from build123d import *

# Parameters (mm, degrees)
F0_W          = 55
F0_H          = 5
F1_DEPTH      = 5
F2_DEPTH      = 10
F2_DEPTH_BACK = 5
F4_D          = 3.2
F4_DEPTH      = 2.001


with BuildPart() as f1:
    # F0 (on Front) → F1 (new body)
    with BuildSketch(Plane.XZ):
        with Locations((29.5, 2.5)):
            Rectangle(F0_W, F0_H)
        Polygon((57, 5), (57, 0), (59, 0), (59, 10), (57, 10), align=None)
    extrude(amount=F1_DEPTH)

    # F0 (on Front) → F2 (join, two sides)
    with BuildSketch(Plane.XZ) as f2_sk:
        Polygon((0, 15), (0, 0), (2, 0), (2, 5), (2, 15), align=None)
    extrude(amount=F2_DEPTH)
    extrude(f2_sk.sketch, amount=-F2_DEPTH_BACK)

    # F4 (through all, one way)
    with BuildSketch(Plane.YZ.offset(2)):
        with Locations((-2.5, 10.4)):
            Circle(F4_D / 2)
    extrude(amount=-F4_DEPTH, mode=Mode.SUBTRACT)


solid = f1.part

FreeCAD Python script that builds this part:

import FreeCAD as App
import Part
import Sketcher

V = App.Vector
Q = App.Units.Quantity


def add_polygon(sketch, points):
    """Adds a closed chain of lines whose ends are joined by coincident constraints."""
    first, n = sketch.GeometryCount, len(points)
    for a, b in zip(points, points[1:] + points[:1]):
        sketch.addGeometry(Part.LineSegment(App.Vector(*a, 0), App.Vector(*b, 0)), False)
    for i in range(n):
        sketch.addConstraint(Sketcher.Constraint("Coincident", first + i, 2, first + (i + 1) % n, 1))

doc = App.newDocument("Part")
body = doc.addObject("PartDesign::Body", "Body")

# Sketch on XZ plane
sketch1 = body.newObject("Sketcher::SketchObject", "Sketch")
sketch1.AttachmentSupport = (doc.getObject("XZ_Plane"), [""])
sketch1.MapMode = "FlatFace"
add_polygon(sketch1, [(2, 5), (2, 0), (59, 0), (59, 10), (57, 10), (57, 5)])  # lines 0-5
sketch1.addConstraint([
    Sketcher.Constraint("Vertical", 0),
    Sketcher.Constraint("Horizontal", 1),
    Sketcher.Constraint("Vertical", 2),
    Sketcher.Constraint("Horizontal", 3),
    Sketcher.Constraint("Vertical", 4),
    Sketcher.Constraint("Horizontal", 5),
    Sketcher.Constraint("PointOnObject", 0, 2, -1),
    Sketcher.Constraint("Equal", 0, 4),
    Sketcher.Constraint("DistanceX", 1, 1, 1, 2, Q("57 mm")),
    Sketcher.Constraint("DistanceX", 3, 2, 3, 1, Q("2 mm")),
    Sketcher.Constraint("DistanceY", 0, 2, 0, 1, Q("5 mm")),
    Sketcher.Constraint("DistanceX", -1, 1, 0, 2, Q("2 mm")),
])
pad1 = body.newObject("PartDesign::Pad", "Pad")
pad1.Profile = sketch1
pad1.Length = 5

# Sketch on XZ plane
sketch2 = body.newObject("Sketcher::SketchObject", "Sketch001")
sketch2.AttachmentSupport = (doc.getObject("XZ_Plane"), [""])
sketch2.MapMode = "FlatFace"
add_polygon(sketch2, [(0, 15), (0, 0), (2, 0), (2, 15)])  # lines 0-3
sketch2.addConstraint([
    Sketcher.Constraint("Vertical", 0),
    Sketcher.Constraint("Horizontal", 1),
    Sketcher.Constraint("Vertical", 2),
    Sketcher.Constraint("Horizontal", 3),
    Sketcher.Constraint("Coincident", 0, 2, -1, 1),
    Sketcher.Constraint("DistanceX", 1, 1, 1, 2, Q("2 mm")),
    Sketcher.Constraint("DistanceY", 0, 2, 0, 1, Q("15 mm")),
])
pad2 = body.newObject("PartDesign::Pad", "Pad001")
pad2.Profile = sketch2
pad2.Type = "TwoLengths"
pad2.Length = 10
pad2.Length2 = 5

# Sketch on YZ plane
sketch3 = body.newObject("Sketcher::SketchObject", "Sketch002")
sketch3.AttachmentSupport = (doc.getObject("YZ_Plane"), [""])
sketch3.MapMode = "FlatFace"
sketch3.AttachmentOffset = App.Placement(V(0, 0, 2), App.Rotation())
sketch3.addGeometry(Part.Circle(V(-2.5, 10.4, 0), V(0, 0, 1), 1.6), False)
sketch3.addConstraint([
    Sketcher.Constraint("Diameter", 0, Q("3.2 mm")),
    Sketcher.Constraint("DistanceX", 0, 3, -1, 1, Q("2.5 mm")),
    Sketcher.Constraint("DistanceY", -1, 1, 0, 3, Q("10.4 mm")),
])
pocket1 = body.newObject("PartDesign::Pocket", "Pocket")
pocket1.Profile = sketch3
pocket1.Type = "ThroughAll"

doc.recompute()
